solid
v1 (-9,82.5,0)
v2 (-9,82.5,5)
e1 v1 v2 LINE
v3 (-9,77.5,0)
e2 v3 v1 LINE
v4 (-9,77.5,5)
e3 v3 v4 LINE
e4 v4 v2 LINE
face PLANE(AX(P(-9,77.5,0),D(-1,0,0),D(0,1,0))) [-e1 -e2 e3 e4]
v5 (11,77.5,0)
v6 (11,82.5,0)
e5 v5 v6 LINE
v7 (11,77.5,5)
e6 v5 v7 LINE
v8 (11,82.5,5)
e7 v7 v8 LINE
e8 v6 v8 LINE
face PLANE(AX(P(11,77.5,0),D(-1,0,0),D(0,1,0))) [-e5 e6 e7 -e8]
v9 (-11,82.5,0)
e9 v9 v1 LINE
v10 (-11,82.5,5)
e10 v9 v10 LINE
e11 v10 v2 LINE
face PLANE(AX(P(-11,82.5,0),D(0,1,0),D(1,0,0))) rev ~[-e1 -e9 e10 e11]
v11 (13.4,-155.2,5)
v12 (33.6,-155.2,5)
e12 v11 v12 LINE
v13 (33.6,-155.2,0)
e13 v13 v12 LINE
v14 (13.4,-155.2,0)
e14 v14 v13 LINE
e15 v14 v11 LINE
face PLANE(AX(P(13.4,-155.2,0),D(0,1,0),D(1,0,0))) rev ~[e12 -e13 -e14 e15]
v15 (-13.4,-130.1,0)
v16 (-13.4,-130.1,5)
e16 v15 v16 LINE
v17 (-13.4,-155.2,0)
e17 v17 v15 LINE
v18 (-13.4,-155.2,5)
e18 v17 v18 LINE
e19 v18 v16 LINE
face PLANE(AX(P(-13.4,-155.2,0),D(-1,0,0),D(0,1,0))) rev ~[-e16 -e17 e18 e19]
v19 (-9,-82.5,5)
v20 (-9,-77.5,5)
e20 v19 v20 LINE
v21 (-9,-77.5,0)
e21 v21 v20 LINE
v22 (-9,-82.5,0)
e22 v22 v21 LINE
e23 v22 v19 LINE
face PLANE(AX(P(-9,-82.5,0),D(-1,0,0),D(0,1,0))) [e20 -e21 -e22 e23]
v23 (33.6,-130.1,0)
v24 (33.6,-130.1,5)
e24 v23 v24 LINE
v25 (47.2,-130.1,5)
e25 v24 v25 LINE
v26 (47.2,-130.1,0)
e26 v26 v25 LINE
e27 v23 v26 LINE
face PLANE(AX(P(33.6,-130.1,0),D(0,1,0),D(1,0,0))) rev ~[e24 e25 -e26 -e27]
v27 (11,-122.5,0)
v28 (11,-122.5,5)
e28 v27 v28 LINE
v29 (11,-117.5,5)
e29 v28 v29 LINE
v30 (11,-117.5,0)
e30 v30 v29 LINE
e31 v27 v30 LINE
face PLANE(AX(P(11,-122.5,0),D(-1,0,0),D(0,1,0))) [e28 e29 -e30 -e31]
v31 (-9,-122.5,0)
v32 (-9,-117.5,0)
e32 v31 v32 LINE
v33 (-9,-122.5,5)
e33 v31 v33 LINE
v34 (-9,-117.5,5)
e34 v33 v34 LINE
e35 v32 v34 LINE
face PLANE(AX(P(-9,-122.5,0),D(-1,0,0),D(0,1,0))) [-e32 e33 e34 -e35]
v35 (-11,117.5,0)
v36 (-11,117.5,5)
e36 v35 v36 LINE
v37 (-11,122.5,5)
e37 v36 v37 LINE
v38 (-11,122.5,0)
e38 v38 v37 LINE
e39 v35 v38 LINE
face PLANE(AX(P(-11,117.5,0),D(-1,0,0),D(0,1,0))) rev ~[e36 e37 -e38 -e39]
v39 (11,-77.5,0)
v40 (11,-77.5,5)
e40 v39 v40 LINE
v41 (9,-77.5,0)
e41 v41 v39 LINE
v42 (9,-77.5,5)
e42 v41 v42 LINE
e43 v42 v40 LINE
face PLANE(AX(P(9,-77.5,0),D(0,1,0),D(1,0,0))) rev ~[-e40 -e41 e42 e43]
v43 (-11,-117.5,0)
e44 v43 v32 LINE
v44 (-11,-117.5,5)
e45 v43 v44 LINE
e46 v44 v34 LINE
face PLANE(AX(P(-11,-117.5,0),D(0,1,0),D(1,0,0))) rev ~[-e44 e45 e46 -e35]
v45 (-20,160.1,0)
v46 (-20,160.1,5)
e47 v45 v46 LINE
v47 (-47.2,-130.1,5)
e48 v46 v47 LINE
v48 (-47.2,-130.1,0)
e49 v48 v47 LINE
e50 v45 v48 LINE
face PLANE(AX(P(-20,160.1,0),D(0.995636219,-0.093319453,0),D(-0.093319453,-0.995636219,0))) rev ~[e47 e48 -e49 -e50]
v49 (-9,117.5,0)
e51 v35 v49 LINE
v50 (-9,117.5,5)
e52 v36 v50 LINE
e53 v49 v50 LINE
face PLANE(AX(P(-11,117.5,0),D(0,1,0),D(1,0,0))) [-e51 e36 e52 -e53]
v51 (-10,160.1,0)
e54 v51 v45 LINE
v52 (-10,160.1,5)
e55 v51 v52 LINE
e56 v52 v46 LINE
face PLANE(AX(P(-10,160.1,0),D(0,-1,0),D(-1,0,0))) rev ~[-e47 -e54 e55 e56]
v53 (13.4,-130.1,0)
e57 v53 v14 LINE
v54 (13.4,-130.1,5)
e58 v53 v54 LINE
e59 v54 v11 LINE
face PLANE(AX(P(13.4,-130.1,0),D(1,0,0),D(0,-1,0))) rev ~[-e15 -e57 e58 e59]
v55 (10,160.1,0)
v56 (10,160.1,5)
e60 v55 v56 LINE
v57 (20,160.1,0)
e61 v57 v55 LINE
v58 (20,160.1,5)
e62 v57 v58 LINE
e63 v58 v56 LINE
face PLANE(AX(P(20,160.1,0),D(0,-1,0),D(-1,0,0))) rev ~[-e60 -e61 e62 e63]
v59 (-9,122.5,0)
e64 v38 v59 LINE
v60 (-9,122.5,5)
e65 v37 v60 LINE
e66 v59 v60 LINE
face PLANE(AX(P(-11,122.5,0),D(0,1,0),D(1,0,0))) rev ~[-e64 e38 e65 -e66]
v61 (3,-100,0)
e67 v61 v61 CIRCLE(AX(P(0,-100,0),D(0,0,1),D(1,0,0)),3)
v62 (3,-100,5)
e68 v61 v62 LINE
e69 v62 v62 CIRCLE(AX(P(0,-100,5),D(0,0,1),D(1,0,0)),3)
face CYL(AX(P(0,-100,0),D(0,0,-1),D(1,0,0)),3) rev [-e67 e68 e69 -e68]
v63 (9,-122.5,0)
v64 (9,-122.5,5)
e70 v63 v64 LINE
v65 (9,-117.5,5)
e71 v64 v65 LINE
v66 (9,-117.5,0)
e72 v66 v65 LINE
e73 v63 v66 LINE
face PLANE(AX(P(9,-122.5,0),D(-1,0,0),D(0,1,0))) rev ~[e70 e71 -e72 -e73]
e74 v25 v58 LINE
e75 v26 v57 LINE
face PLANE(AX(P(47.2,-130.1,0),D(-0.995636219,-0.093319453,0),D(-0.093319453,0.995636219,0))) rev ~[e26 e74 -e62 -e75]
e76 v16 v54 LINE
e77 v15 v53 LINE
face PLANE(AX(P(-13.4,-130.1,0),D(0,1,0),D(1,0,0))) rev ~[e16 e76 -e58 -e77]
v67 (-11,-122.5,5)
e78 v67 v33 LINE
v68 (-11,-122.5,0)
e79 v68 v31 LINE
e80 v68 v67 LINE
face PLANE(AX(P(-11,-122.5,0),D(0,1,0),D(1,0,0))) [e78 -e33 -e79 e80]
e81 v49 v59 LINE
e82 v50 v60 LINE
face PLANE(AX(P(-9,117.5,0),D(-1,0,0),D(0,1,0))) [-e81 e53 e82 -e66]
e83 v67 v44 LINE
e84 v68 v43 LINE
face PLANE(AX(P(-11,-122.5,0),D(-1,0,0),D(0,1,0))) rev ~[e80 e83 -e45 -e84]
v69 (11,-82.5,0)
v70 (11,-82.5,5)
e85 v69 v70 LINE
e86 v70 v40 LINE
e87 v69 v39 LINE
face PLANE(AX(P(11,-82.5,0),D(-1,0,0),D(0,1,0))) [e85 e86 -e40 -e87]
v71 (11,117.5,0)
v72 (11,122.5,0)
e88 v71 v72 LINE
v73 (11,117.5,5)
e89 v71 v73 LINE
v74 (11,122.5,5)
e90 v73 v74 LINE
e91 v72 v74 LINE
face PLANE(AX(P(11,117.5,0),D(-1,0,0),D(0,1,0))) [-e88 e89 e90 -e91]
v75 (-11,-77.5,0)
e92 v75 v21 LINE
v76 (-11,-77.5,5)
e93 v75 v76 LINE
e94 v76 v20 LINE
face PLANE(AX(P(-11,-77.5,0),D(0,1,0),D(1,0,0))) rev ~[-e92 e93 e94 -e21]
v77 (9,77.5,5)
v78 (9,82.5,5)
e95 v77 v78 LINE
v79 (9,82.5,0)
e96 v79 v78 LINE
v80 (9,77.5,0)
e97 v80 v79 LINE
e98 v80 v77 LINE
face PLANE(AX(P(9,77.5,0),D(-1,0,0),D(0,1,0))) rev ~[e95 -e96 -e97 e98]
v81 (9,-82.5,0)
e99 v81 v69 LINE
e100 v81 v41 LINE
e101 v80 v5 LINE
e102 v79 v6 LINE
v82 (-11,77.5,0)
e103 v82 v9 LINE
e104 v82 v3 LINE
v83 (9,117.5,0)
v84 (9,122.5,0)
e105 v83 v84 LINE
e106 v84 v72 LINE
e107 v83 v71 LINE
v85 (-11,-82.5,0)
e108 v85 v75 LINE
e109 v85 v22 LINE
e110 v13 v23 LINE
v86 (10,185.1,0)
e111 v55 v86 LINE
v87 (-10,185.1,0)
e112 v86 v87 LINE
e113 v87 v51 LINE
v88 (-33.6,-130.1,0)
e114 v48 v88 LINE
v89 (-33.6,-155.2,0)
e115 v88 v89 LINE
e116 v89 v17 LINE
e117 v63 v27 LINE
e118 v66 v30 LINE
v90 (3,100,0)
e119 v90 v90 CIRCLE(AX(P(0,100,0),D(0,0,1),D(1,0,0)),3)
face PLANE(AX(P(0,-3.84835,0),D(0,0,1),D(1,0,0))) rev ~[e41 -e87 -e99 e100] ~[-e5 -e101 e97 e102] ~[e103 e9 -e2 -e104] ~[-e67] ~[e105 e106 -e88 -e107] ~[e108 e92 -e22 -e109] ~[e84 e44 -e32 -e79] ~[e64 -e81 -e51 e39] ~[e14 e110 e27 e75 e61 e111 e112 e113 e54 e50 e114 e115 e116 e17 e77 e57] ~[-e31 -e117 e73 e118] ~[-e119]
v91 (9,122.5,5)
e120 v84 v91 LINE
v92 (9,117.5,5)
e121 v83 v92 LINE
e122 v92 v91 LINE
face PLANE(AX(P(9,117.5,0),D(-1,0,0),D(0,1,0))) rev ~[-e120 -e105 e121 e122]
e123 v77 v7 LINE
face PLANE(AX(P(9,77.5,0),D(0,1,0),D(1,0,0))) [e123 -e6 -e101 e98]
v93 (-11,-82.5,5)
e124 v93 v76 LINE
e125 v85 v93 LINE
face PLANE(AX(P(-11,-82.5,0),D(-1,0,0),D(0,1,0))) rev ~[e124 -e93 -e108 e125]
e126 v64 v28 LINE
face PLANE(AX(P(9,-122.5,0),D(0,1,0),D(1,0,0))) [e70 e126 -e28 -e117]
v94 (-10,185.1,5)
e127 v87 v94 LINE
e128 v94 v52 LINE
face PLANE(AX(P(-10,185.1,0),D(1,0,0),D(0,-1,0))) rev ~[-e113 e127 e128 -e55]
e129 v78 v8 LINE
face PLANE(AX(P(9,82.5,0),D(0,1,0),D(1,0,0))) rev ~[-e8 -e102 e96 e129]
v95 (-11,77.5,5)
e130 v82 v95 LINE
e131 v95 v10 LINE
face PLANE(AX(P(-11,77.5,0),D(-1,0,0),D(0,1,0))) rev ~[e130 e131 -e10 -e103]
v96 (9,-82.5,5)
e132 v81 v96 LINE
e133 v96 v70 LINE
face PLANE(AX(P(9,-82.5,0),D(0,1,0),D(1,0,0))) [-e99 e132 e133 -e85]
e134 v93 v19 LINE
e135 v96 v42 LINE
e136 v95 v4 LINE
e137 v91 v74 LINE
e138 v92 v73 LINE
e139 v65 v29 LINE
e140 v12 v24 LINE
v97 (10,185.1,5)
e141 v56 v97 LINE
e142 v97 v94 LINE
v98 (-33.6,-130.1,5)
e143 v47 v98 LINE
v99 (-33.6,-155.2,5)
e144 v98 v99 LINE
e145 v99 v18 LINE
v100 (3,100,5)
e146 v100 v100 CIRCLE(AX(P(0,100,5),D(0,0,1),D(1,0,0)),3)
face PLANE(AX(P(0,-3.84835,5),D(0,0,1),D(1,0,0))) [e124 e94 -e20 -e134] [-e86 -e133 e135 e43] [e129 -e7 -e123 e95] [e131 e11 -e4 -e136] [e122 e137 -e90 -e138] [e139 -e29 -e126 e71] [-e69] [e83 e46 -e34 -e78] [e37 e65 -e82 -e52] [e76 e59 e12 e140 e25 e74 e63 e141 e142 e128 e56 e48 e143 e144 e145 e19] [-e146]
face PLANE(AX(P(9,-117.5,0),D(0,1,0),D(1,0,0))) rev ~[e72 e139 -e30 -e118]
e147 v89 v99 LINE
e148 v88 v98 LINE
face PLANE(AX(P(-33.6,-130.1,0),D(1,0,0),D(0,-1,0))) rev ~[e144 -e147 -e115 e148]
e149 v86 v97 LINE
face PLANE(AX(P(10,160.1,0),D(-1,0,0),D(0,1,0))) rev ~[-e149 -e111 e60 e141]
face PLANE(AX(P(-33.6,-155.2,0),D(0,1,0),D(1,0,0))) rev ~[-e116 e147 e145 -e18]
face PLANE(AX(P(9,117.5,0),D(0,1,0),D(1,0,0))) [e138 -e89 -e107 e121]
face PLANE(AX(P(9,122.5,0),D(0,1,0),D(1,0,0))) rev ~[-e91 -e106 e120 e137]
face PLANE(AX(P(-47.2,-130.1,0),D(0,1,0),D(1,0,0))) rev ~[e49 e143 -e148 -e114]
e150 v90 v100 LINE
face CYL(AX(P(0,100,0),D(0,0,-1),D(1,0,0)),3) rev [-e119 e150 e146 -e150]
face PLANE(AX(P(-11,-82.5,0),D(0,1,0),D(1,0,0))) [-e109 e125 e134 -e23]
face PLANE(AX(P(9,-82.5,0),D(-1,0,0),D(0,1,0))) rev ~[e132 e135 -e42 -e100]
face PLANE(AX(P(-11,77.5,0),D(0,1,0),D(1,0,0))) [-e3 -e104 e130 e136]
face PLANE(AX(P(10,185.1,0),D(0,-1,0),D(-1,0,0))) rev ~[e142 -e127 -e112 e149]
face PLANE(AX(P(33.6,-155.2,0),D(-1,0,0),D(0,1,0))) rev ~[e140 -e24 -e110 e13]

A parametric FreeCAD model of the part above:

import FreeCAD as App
import Part
import Sketcher
from FreeCAD import Vector


def add_polygon(sketch, points):
    """Adds a closed chain of lines whose ends are joined by coincident constraints."""
    first, n = sketch.GeometryCount, len(points)
    for a, b in zip(points, points[1:] + points[:1]):
        sketch.addGeometry(Part.LineSegment(App.Vector(*a, 0), App.Vector(*b, 0)), False)
    for i in range(n):
        sketch.addConstraint(Sketcher.Constraint("Coincident", first + i, 2, first + (i + 1) % n, 1))

doc = App.newDocument("Part")
body = doc.addObject("PartDesign::Body", "Body")

sketch1 = body.newObject("Sketcher::SketchObject", "Sketch")
sketch1.AttachmentSupport = (doc.getObject("XY_Plane"), [""])
sketch1.MapMode = "FlatFace"
add_polygon(sketch1, [(-10, 160.1), (-20, 160.1), (-47.2, -130.1), (-33.6, -130.1), (-33.6, -155.2), (-13.4, -155.2), (-13.4, -130.1), (13.4, -130.1), (13.4, -155.2), (33.6, -155.2), (33.6, -130.1), (47.2, -130.1), (20, 160.1), (10, 160.1), (10, 185.1), (-10, 185.1)])
add_polygon(sketch1, [(-9, -122.5), (-11, -122.5), (-11, -117.5), (-9, -117.5)])
add_polygon(sketch1, [(-9, -82.5), (-11, -82.5), (-11, -77.5), (-9, -77.5)])
sketch1.addGeometry(Part.Circle(Vector(0, -100, 0), Vector(0, 0, 1), 3), False)
add_polygon(sketch1, [(11, -122.5), (9, -122.5), (9, -117.5), (11, -117.5)])
add_polygon(sketch1, [(11, -82.5), (9, -82.5), (9, -77.5), (11, -77.5)])
add_polygon(sketch1, [(-9, 77.5), (-11, 77.5), (-11, 82.5), (-9, 82.5)])
add_polygon(sketch1, [(-9, 117.5), (-11, 117.5), (-11, 122.5), (-9, 122.5)])
sketch1.addGeometry(Part.Circle(Vector(0, 100, 0), Vector(0, 0, 1), 3), False)
add_polygon(sketch1, [(11, 77.5), (9, 77.5), (9, 82.5), (11, 82.5)])
add_polygon(sketch1, [(11, 117.5), (9, 117.5), (9, 122.5), (11, 122.5)])
sketch1.addConstraint(Sketcher.Constraint("Horizontal", 0))
sketch1.addConstraint(Sketcher.Constraint("Horizontal", 2))
sketch1.addConstraint(Sketcher.Constraint("Vertical", 3))
sketch1.addConstraint(Sketcher.Constraint("Horizontal", 4))
sketch1.addConstraint(Sketcher.Constraint("Vertical", 5))
sketch1.addConstraint(Sketcher.Constraint("Horizontal", 6))
sketch1.addConstraint(Sketcher.Constraint("Vertical", 7))
sketch1.addConstraint(Sketcher.Constraint("Horizontal", 8))
sketch1.addConstraint(Sketcher.Constraint("Vertical", 9))
sketch1.addConstraint(Sketcher.Constraint("Horizontal", 10))
sketch1.addConstraint(Sketcher.Constraint("Horizontal", 12))
sketch1.addConstraint(Sketcher.Constraint("Vertical", 13))
sketch1.addConstraint(Sketcher.Constraint("Horizontal", 14))
sketch1.addConstraint(Sketcher.Constraint("Vertical", 15))
sketch1.addConstraint(Sketcher.Constraint("Horizontal", 16))
sketch1.addConstraint(Sketcher.Constraint("Vertical", 17))
sketch1.addConstraint(Sketcher.Constraint("Horizontal", 18))
sketch1.addConstraint(Sketcher.Constraint("Vertical", 19))
sketch1.addConstraint(Sketcher.Constraint("Horizontal", 20))
sketch1.addConstraint(Sketcher.Constraint("Vertical", 21))
sketch1.addConstraint(Sketcher.Constraint("Horizontal", 22))
sketch1.addConstraint(Sketcher.Constraint("Vertical", 23))
sketch1.addConstraint(Sketcher.Constraint("Horizontal", 25))
sketch1.addConstraint(Sketcher.Constraint("Vertical", 26))
sketch1.addConstraint(Sketcher.Constraint("Horizontal", 27))
sketch1.addConstraint(Sketcher.Constraint("Vertical", 28))
sketch1.addConstraint(Sketcher.Constraint("Horizontal", 29))
sketch1.addConstraint(Sketcher.Constraint("Vertical", 30))
sketch1.addConstraint(Sketcher.Constraint("Horizontal", 31))
sketch1.addConstraint(Sketcher.Constraint("Vertical", 32))
sketch1.addConstraint(Sketcher.Constraint("Horizontal", 33))
sketch1.addConstraint(Sketcher.Constraint("Vertical", 34))
sketch1.addConstraint(Sketcher.Constraint("Horizontal", 35))
sketch1.addConstraint(Sketcher.Constraint("Vertical", 36))
sketch1.addConstraint(Sketcher.Constraint("Horizontal", 37))
sketch1.addConstraint(Sketcher.Constraint("Vertical", 38))
sketch1.addConstraint(Sketcher.Constraint("Horizontal", 39))
sketch1.addConstraint(Sketcher.Constraint("Vertical", 40))
sketch1.addConstraint(Sketcher.Constraint("Horizontal", 42))
sketch1.addConstraint(Sketcher.Constraint("Vertical", 43))
sketch1.addConstraint(Sketcher.Constraint("Horizontal", 44))
sketch1.addConstraint(Sketcher.Constraint("Vertical", 45))
sketch1.addConstraint(Sketcher.Constraint("Horizontal", 46))
sketch1.addConstraint(Sketcher.Constraint("Vertical", 47))
sketch1.addConstraint(Sketcher.Constraint("Horizontal", 48))
sketch1.addConstraint(Sketcher.Constraint("Vertical", 49))
sketch1.addConstraint(Sketcher.Constraint("Equal", 24, 41))
sketch1.addConstraint(Sketcher.Constraint("Symmetric", 24, 3, 41, 3, -1, 1))
sketch1.addConstraint(Sketcher.Constraint("Symmetric", 31, 2, 33, 2, -1, 1))
sketch1.addConstraint(Sketcher.Constraint("Symmetric", 29, 2, 35, 2, -1, 1))
sketch1.addConstraint(Sketcher.Constraint("Symmetric", 27, 2, 37, 2, -1, 1))
sketch1.addConstraint(Sketcher.Constraint("Symmetric", 25, 2, 39, 2, -1, 1))
sketch1.addConstraint(Sketcher.Constraint("Symmetric", 22, 2, 42, 2, -1, 1))
sketch1.addConstraint(Sketcher.Constraint("Symmetric", 20, 2, 44, 2, -1, 1))
sketch1.addConstraint(Sketcher.Constraint("Symmetric", 18, 2, 46, 2, -1, 1))
sketch1.addConstraint(Sketcher.Constraint("Symmetric", 16, 2, 48, 2, -1, 1))
sketch1.addConstraint(Sketcher.Constraint("Symmetric", 4, 2, 7, 2, -2))
sketch1.addConstraint(Sketcher.Constraint("Symmetric", 2, 2, 9, 2, -2))
sketch1.addConstraint(Sketcher.Constraint("Symmetric", 0, 2, 11, 2, -2))
sketch1.addConstraint(Sketcher.Constraint("Symmetric", 19, 2, 25, 2, -2))
sketch1.addConstraint(Sketcher.Constraint("Symmetric", 17, 2, 27, 2, -2))
sketch1.addConstraint(Sketcher.Constraint("Symmetric", 23, 2, 29, 2, -2))
sketch1.addConstraint(Sketcher.Constraint("Symmetric", 21, 2, 31, 2, -2))
sketch1.addConstraint(Sketcher.Constraint("PointOnObject", 24, 3, -2))
sketch1.addConstraint(Sketcher.Constraint("Horizontal", 2, 2, 5, 2))
sketch1.addConstraint(Sketcher.Constraint("Vertical", 17, 2, 20, 2))
sketch1.addConstraint(Sketcher.Constraint("Vertical", 19, 2, 22, 2))
sketch1.addConstraint(Sketcher.Constraint("Equal", 2, 10))
sketch1.addConstraint(Sketcher.Constraint("Equal", 0, 12))
sketch1.addConstraint(Sketcher.Constraint("Equal", 19, 21))
sketch1.addConstraint(Sketcher.Constraint("Diameter", 24, 6.0))
sketch1.addConstraint(Sketcher.Constraint("DistanceX", 0, 2, 0, 1, 10.0))
sketch1.addConstraint(Sketcher.Constraint("DistanceX", 14, 2, 14, 1, 20.0))
sketch1.addConstraint(Sketcher.Constraint("DistanceX", 16, 2, 16, 1, 2.0))
sketch1.addConstraint(Sketcher.Constraint("DistanceY", 13, 1, 13, 2, 25.0))
sketch1.addConstraint(Sketcher.Constraint("DistanceY", 17, 1, 17, 2, 5.0))
sketch1.addConstraint(Sketcher.Constraint("DistanceX", 2, 1, 2, 2, 13.6))
sketch1.addConstraint(Sketcher.Constraint("DistanceX", 4, 1, 4, 2, 20.2))
sketch1.addConstraint(Sketcher.Constraint("DistanceX", 6, 1, 6, 2, 26.8))
sketch1.addConstraint(Sketcher.Constraint("DistanceY", 3, 2, 3, 1, 25.1))
sketch1.addConstraint(Sketcher.Constraint("DistanceY", 24, 3, -1, 1, 100.0))
sketch1.addConstraint(Sketcher.Constraint("DistanceX", 16, 2, -1, 1, 11.0))
sketch1.addConstraint(Sketcher.Constraint("DistanceY", 17, 2, 20, 2, 35.0))
sketch1.addConstraint(Sketcher.Constraint("DistanceY", -1, 1, 0, 2, 160.1))
sketch1.addConstraint(Sketcher.Constraint("DistanceY", 1, 2, -1, 1, 130.1))
sketch1.addConstraint(Sketcher.Constraint("DistanceY", 16, 2, -1, 1, 122.5))
pad1 = body.newObject("PartDesign::Pad", "Pad")
pad1.Profile = sketch1
pad1.Length = 5

doc.recompute()
